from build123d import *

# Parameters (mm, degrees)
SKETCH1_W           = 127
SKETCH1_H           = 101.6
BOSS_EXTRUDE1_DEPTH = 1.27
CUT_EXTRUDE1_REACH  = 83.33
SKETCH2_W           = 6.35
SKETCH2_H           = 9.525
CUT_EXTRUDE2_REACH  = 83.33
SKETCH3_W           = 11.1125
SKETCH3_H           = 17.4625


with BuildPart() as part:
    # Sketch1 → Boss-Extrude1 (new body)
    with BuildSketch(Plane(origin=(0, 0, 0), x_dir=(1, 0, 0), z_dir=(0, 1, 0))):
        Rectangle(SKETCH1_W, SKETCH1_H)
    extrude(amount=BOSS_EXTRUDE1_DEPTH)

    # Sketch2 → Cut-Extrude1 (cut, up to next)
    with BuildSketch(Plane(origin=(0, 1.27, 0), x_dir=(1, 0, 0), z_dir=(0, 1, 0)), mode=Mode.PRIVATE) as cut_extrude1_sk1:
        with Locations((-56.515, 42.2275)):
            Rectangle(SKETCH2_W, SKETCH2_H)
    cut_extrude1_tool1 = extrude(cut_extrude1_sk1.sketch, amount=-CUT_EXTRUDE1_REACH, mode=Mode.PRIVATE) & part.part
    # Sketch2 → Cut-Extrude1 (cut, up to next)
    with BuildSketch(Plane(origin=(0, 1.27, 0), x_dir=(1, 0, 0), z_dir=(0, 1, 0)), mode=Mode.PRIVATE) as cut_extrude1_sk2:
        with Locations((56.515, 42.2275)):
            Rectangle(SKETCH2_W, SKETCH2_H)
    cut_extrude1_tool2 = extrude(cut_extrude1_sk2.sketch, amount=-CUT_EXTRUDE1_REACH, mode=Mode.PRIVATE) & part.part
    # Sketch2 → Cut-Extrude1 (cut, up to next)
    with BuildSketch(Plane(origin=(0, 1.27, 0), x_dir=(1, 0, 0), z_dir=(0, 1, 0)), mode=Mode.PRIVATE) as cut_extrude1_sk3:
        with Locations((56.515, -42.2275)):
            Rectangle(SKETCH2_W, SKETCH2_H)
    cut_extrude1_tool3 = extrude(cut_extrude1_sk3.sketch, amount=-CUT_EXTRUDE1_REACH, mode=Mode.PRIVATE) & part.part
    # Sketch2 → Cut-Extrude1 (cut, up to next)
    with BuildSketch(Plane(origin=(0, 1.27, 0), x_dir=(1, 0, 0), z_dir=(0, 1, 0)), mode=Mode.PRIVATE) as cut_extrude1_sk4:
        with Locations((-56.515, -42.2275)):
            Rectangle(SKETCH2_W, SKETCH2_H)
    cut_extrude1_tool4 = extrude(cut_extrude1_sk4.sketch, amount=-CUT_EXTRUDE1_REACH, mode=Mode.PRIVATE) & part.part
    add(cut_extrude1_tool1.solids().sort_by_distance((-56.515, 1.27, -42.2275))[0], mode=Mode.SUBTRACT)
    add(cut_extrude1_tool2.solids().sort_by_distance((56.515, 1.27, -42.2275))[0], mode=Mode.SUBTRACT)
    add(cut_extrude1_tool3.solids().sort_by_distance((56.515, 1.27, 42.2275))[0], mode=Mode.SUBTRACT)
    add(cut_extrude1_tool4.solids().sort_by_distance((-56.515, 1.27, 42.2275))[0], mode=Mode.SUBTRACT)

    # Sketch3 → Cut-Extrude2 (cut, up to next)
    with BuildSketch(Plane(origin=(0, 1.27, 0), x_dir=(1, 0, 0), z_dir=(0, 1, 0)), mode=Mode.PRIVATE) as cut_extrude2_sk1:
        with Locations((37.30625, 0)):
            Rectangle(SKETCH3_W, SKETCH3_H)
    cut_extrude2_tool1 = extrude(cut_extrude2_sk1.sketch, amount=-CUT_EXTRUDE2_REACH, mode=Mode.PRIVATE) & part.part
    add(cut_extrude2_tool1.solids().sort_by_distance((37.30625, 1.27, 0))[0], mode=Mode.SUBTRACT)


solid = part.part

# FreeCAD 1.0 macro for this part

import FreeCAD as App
import Part
import Sketcher
Q = App.Units.Quantity

doc = App.newDocument("Part")
body = doc.addObject("PartDesign::Body", "Body")

sketch1 = doc.addObject("Sketcher::SketchObject", "Sketch")
body.addObject(sketch1)
sketch1.AttachmentSupport = (doc.XZ_Plane, [""])
sketch1.MapMode = "FlatFace"
sketch1.addGeometry([
    Part.LineSegment(App.Vector(-64, -51, 0), App.Vector(-64, 51, 0)),
    Part.LineSegment(App.Vector(-64, 51, 0), App.Vector(64, 51, 0)),
    Part.LineSegment(App.Vector(64, 51, 0), App.Vector(64, -51, 0)),
    Part.LineSegment(App.Vector(64, -51, 0), App.Vector(-64, -51, 0)),
], False)
sketch1.addConstraint([
    Sketcher.Constraint("Coincident", 0, 2, 1, 1),
    Sketcher.Constraint("Coincident", 1, 2, 2, 1),
    Sketcher.Constraint("Coincident", 2, 2, 3, 1),
    Sketcher.Constraint("Coincident", 3, 2, 0, 1),
    Sketcher.Constraint("Vertical", 0),
    Sketcher.Constraint("Horizontal", 1),
    Sketcher.Constraint("Vertical", 2),
    Sketcher.Constraint("Horizontal", 3),
    Sketcher.Constraint("Symmetric", 0, 2, 2, 2, -1, 1),
    Sketcher.Constraint("DistanceX", 1, 1, 1, 2, Q("5 in")),
    Sketcher.Constraint("DistanceY", 0, 1, 0, 2, Q("4 in")),
])
pad1 = doc.addObject("PartDesign::Pad", "Pad")
body.addObject(pad1)
pad1.Profile = sketch1
pad1.Length = Q("0.05 in")
pad1.Reversed = True

sketch2 = doc.addObject("Sketcher::SketchObject", "Sketch001")
body.addObject(sketch2)
sketch2.AttachmentSupport = (doc.XZ_Plane, [""])
sketch2.MapMode = "FlatFace"
sketch2.AttachmentOffset = App.Placement(App.Vector(0, 0, -0.05 * 25.4), App.Rotation())
sketch2.addGeometry([
    Part.LineSegment(App.Vector(-60, -47, 0), App.Vector(-60, -37, 0)),
    Part.LineSegment(App.Vector(-60, -37, 0), App.Vector(-53, -37, 0)),
    Part.LineSegment(App.Vector(-53, -37, 0), App.Vector(-53, -47, 0)),
    Part.LineSegment(App.Vector(-53, -47, 0), App.Vector(-60, -47, 0)),
], False)
sketch2.addConstraint([
    Sketcher.Constraint("Coincident", 0, 2, 1, 1),
    Sketcher.Constraint("Coincident", 1, 2, 2, 1),
    Sketcher.Constraint("Coincident", 2, 2, 3, 1),
    Sketcher.Constraint("Coincident", 3, 2, 0, 1),
    Sketcher.Constraint("Vertical", 0),
    Sketcher.Constraint("Horizontal", 1),
    Sketcher.Constraint("Vertical", 2),
    Sketcher.Constraint("Horizontal", 3),
    Sketcher.Constraint("DistanceX", 1, 1, 1, 2, Q("0.25 in")),
    Sketcher.Constraint("DistanceX", 1, 2, -1, 1, Q("2.1 in")),
    Sketcher.Constraint("DistanceY", 0, 1, 0, 2, Q("0.375 in")),
    Sketcher.Constraint("DistanceY", 2, 2, -1, 1, Q("1.85 in")),
])
pocket1 = doc.addObject("PartDesign::Pocket", "Pocket")
body.addObject(pocket1)
pocket1.Profile = sketch2
pocket1.Type = "UpToFirst"
pocket1.Reversed = True

sketch3 = doc.addObject("Sketcher::SketchObject", "Sketch002")
body.addObject(sketch3)
sketch3.AttachmentSupport = (doc.XZ_Plane, [""])
sketch3.MapMode = "FlatFace"
sketch3.AttachmentOffset = App.Placement(App.Vector(0, 0, -0.05 * 25.4), App.Rotation())
sketch3.addGeometry([
    Part.LineSegment(App.Vector(53, -47, 0), App.Vector(53, -37, 0)),
    Part.LineSegment(App.Vector(53, -37, 0), App.Vector(60, -37, 0)),
    Part.LineSegment(App.Vector(60, -37, 0), App.Vector(60, -47, 0)),
    Part.LineSegment(App.Vector(60, -47, 0), App.Vector(53, -47, 0)),
], False)
sketch3.addConstraint([
    Sketcher.Constraint("Coincident", 0, 2, 1, 1),
    Sketcher.Constraint("Coincident", 1, 2, 2, 1),
    Sketcher.Constraint("Coincident", 2, 2, 3, 1),
    Sketcher.Constraint("Coincident", 3, 2, 0, 1),
    Sketcher.Constraint("Vertical", 0),
    Sketcher.Constraint("Horizontal", 1),
    Sketcher.Constraint("Vertical", 2),
    Sketcher.Constraint("Horizontal", 3),
    Sketcher.Constraint("DistanceX", 1, 1, 1, 2, Q("0.25 in")),
    Sketcher.Constraint("DistanceX", -1, 1, 0, 2, Q("2.1 in")),
    Sketcher.Constraint("DistanceY", 0, 1, 0, 2, Q("0.375 in")),
    Sketcher.Constraint("DistanceY", 2, 2, -1, 1, Q("1.85 in")),
])
pocket2 = doc.addObject("PartDesign::Pocket", "Pocket001")
body.addObject(pocket2)
pocket2.Profile = sketch3
pocket2.Type = "UpToFirst"
pocket2.Reversed = True

sketch4 = doc.addObject("Sketcher::SketchObject", "Sketch003")
body.addObject(sketch4)
sketch4.AttachmentSupport = (doc.XZ_Plane, [""])
sketch4.MapMode = "FlatFace"
sketch4.AttachmentOffset = App.Placement(App.Vector(0, 0, -0.05 * 25.4), App.Rotation())
sketch4.addGeometry([
    Part.LineSegment(App.Vector(53, 37, 0), App.Vector(53, 47, 0)),
    Part.LineSegment(App.Vector(53, 47, 0), App.Vector(60, 47, 0)),
    Part.LineSegment(App.Vector(60, 47, 0), App.Vector(60, 37, 0)),
    Part.LineSegment(App.Vector(60, 37, 0), App.Vector(53, 37, 0)),
], False)
sketch4.addConstraint([
    Sketcher.Constraint("Coincident", 0, 2, 1, 1),
    Sketcher.Constraint("Coincident", 1, 2, 2, 1),
    Sketcher.Constraint("Coincident", 2, 2, 3, 1),
    Sketcher.Constraint("Coincident", 3, 2, 0, 1),
    Sketcher.Constraint("Vertical", 0),
    Sketcher.Constraint("Horizontal", 1),
    Sketcher.Constraint("Vertical", 2),
    Sketcher.Constraint("Horizontal", 3),
    Sketcher.Constraint("DistanceX", 1, 1, 1, 2, Q("0.25 in")),
    Sketcher.Constraint("DistanceX", -1, 1, 0, 2, Q("2.1 in")),
    Sketcher.Constraint("DistanceY", 0, 1, 0, 2, Q("0.375 in")),
    Sketcher.Constraint("DistanceY", -1, 1, 0, 2, Q("1.85 in")),
])
pocket3 = doc.addObject("PartDesign::Pocket", "Pocket002")
body.addObject(pocket3)
pocket3.Profile = sketch4
pocket3.Type = "UpToFirst"
pocket3.Reversed = True

sketch5 = doc.addObject("Sketcher::SketchObject", "Sketch004")
body.addObject(sketch5)
sketch5.AttachmentSupport = (doc.XZ_Plane, [""])
sketch5.MapMode = "FlatFace"
sketch5.AttachmentOffset = App.Placement(App.Vector(0, 0, -0.05 * 25.4), App.Rotation())
sketch5.addGeometry([
    Part.LineSegment(App.Vector(-60, 37, 0), App.Vector(-60, 47, 0)),
    Part.LineSegment(App.Vector(-60, 47, 0), App.Vector(-53, 47, 0)),
    Part.LineSegment(App.Vector(-53, 47, 0), App.Vector(-53, 37, 0)),
    Part.LineSegment(App.Vector(-53, 37, 0), App.Vector(-60, 37, 0)),
], False)
sketch5.addConstraint([
    Sketcher.Constraint("Coincident", 0, 2, 1, 1),
    Sketcher.Constraint("Coincident", 1, 2, 2, 1),
    Sketcher.Constraint("Coincident", 2, 2, 3, 1),
    Sketcher.Constraint("Coincident", 3, 2, 0, 1),
    Sketcher.Constraint("Vertical", 0),
    Sketcher.Constraint("Horizontal", 1),
    Sketcher.Constraint("Vertical", 2),
    Sketcher.Constraint("Horizontal", 3),
    Sketcher.Constraint("DistanceX", 1, 1, 1, 2, Q("0.25 in")),
    Sketcher.Constraint("DistanceX", 1, 2, -1, 1, Q("2.1 in")),
    Sketcher.Constraint("DistanceY", 0, 1, 0, 2, Q("0.375 in")),
    Sketcher.Constraint("DistanceY", -1, 1, 0, 2, Q("1.85 in")),
])
pocket4 = doc.addObject("PartDesign::Pocket", "Pocket003")
body.addObject(pocket4)
pocket4.Profile = sketch5
pocket4.Type = "UpToFirst"
pocket4.Reversed = True

sketch6 = doc.addObject("Sketcher::SketchObject", "Sketch005")
body.addObject(sketch6)
sketch6.AttachmentSupport = (doc.XZ_Plane, [""])
sketch6.MapMode = "FlatFace"
sketch6.AttachmentOffset = App.Placement(App.Vector(0, 0, -0.05 * 25.4), App.Rotation())
sketch6.addGeometry([
    Part.LineSegment(App.Vector(32, -9, 0), App.Vector(32, 9, 0)),
    Part.LineSegment(App.Vector(32, 9, 0), App.Vector(43, 9, 0)),
    Part.LineSegment(App.Vector(43, 9, 0), App.Vector(43, -9, 0)),
    Part.LineSegment(App.Vector(43, -9, 0), App.Vector(32, -9, 0)),
], False)
sketch6.addConstraint([
    Sketcher.Constraint("Coincident", 0, 2, 1, 1),
    Sketcher.Constraint("Coincident", 1, 2, 2, 1),
    Sketcher.Constraint("Coincident", 2, 2, 3, 1),
    Sketcher.Constraint("Coincident", 3, 2, 0, 1),
    Sketcher.Constraint("Vertical", 0),
    Sketcher.Constraint("Horizontal", 1),
    Sketcher.Constraint("Vertical", 2),
    Sketcher.Constraint("Horizontal", 3),
    Sketcher.Constraint("DistanceX", 1, 1, 1, 2, Q("0.4375 in")),
    Sketcher.Constraint("DistanceY", 0, 1, 0, 2, Q("0.6875 in")),
    Sketcher.Constraint("DistanceX", -1, 1, 0, 2, Q("1.25 in")),
    Sketcher.Constraint("DistanceY", -1, 1, 0, 2, Q("0.34375 in")),
])
pocket5 = doc.addObject("PartDesign::Pocket", "Pocket004")
body.addObject(pocket5)
pocket5.Profile = sketch6
pocket5.Type = "UpToFirst"
pocket5.Reversed = True

doc.recompute()
